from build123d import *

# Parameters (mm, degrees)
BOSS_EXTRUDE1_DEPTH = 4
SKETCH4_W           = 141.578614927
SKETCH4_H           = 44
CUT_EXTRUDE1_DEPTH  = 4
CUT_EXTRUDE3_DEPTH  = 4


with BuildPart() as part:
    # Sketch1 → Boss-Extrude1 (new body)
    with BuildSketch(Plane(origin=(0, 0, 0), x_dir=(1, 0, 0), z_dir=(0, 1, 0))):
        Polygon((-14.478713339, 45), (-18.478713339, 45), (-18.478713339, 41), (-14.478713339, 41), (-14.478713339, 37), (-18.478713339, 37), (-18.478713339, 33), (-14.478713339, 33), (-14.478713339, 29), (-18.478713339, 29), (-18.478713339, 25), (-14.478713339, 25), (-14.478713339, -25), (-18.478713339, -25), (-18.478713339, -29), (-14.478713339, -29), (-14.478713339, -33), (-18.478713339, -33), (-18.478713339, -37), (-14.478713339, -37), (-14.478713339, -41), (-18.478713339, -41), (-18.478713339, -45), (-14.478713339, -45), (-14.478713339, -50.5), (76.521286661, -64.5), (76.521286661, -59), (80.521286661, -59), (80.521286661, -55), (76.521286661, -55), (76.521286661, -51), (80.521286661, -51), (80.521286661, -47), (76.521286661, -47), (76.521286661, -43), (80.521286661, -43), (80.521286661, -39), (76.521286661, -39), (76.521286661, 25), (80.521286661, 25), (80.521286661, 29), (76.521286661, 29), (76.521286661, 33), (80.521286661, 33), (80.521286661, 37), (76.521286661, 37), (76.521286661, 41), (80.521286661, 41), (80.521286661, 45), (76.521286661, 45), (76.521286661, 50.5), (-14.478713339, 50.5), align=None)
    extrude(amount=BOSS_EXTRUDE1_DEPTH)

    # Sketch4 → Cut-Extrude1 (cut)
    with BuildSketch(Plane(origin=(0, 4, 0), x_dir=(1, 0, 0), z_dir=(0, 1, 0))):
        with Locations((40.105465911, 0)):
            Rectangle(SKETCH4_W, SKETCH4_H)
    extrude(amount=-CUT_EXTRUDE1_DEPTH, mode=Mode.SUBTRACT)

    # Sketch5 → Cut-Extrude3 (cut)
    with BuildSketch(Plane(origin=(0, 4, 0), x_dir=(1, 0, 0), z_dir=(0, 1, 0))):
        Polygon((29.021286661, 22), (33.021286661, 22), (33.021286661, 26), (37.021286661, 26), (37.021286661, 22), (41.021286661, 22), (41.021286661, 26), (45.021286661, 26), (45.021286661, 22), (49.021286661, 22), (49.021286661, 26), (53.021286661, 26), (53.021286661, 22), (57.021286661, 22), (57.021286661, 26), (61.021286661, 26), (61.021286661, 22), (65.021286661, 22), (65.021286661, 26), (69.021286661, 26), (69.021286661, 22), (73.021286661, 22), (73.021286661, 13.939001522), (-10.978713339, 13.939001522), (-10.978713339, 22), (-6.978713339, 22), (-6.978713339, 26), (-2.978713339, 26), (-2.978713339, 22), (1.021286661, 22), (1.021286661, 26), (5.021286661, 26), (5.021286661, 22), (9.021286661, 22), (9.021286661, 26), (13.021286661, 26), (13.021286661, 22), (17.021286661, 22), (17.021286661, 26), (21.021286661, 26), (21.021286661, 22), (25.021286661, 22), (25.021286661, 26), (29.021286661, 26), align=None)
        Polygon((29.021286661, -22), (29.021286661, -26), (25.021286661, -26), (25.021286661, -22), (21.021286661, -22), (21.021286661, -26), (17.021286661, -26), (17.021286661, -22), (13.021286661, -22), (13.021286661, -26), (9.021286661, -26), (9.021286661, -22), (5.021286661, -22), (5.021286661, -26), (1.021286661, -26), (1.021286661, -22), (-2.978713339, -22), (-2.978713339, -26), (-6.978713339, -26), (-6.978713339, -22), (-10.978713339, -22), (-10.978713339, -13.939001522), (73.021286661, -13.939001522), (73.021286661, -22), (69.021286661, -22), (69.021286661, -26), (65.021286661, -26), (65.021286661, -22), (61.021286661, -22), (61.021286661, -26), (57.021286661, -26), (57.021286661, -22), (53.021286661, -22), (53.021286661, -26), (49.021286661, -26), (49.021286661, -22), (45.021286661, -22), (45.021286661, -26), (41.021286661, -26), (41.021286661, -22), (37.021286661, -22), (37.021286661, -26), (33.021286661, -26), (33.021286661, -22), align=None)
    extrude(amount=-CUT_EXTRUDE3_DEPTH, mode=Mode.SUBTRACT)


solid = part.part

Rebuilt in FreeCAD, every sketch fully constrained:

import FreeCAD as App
import Part
import Sketcher


def add_polygon(sketch, points):
    """Adds a closed chain of lines whose ends are joined by coincident constraints."""
    first, n = sketch.GeometryCount, len(points)
    for a, b in zip(points, points[1:] + points[:1]):
        sketch.addGeometry(Part.LineSegment(App.Vector(*a, 0), App.Vector(*b, 0)), False)
    for i in range(n):
        sketch.addConstraint(Sketcher.Constraint("Coincident", first + i, 2, first + (i + 1) % n, 1))

doc = App.newDocument("Part")
body = doc.addObject("PartDesign::Body", "Body")
body.AllowCompound = True

# Sketch on XZ plane
sketch1 = body.newObject("Sketcher::SketchObject", "Sketch")
sketch1.AttachmentSupport = (doc.getObject("XZ_Plane"), [""])
sketch1.MapMode = "FlatFace"
add_polygon(sketch1, [(-14.478713, -45), (-18.478713, -45), (-18.478713, -41), (-14.478713, -41), (-14.478713, -37), (-18.478713, -37), (-18.478713, -33), (-14.478713, -33), (-14.478713, -29), (-18.478713, -29), (-18.478713, -25), (-14.478713, -25), (-14.478713, 25), (-18.478713, 25), (-18.478713, 29), (-14.478713, 29), (-14.478713, 33), (-18.478713, 33), (-18.478713, 37), (-14.478713, 37), (-14.478713, 41), (-18.478713, 41), (-18.478713, 45), (-14.478713, 45), (-14.478713, 50.5), (76.521287, 64.5), (76.521287, 59), (80.521287, 59), (80.521287, 55), (76.521287, 55), (76.521287, 51), (80.521287, 51), (80.521287, 47), (76.521287, 47), (76.521287, 43), (80.521287, 43), (80.521287, 39), (76.521287, 39), (76.521287, -25), (80.521287, -25), (80.521287, -29), (76.521287, -29), (76.521287, -33), (80.521287, -33), (80.521287, -37), (76.521287, -37), (76.521287, -41), (80.521287, -41), (80.521287, -45), (76.521287, -45), (76.521287, -50.5), (-14.478713, -50.5)])  # lines 0-51
sketch1.addConstraint(Sketcher.Constraint("Horizontal", 0))
sketch1.addConstraint(Sketcher.Constraint("Vertical", 1))
sketch1.addConstraint(Sketcher.Constraint("Horizontal", 2))
sketch1.addConstraint(Sketcher.Constraint("Vertical", 3))
sketch1.addConstraint(Sketcher.Constraint("Horizontal", 4))
sketch1.addConstraint(Sketcher.Constraint("Vertical", 5))
sketch1.addConstraint(Sketcher.Constraint("Horizontal", 6))
sketch1.addConstraint(Sketcher.Constraint("Vertical", 7))
sketch1.addConstraint(Sketcher.Constraint("Horizontal", 8))
sketch1.addConstraint(Sketcher.Constraint("Vertical", 9))
sketch1.addConstraint(Sketcher.Constraint("Horizontal", 10))
sketch1.addConstraint(Sketcher.Constraint("Vertical", 11))
sketch1.addConstraint(Sketcher.Constraint("Horizontal", 12))
sketch1.addConstraint(Sketcher.Constraint("Vertical", 13))
sketch1.addConstraint(Sketcher.Constraint("Horizontal", 14))
sketch1.addConstraint(Sketcher.Constraint("Vertical", 15))
sketch1.addConstraint(Sketcher.Constraint("Horizontal", 16))
sketch1.addConstraint(Sketcher.Constraint("Vertical", 17))
sketch1.addConstraint(Sketcher.Constraint("Horizontal", 18))
sketch1.addConstraint(Sketcher.Constraint("Vertical", 19))
sketch1.addConstraint(Sketcher.Constraint("Horizontal", 20))
sketch1.addConstraint(Sketcher.Constraint("Vertical", 21))
sketch1.addConstraint(Sketcher.Constraint("Horizontal", 22))
sketch1.addConstraint(Sketcher.Constraint("Vertical", 23))
sketch1.addConstraint(Sketcher.Constraint("Vertical", 25))
sketch1.addConstraint(Sketcher.Constraint("Horizontal", 26))
sketch1.addConstraint(Sketcher.Constraint("Vertical", 27))
sketch1.addConstraint(Sketcher.Constraint("Horizontal", 28))
sketch1.addConstraint(Sketcher.Constraint("Vertical", 29))
sketch1.addConstraint(Sketcher.Constraint("Horizontal", 30))
sketch1.addConstraint(Sketcher.Constraint("Vertical", 31))
sketch1.addConstraint(Sketcher.Constraint("Horizontal", 32))
sketch1.addConstraint(Sketcher.Constraint("Vertical", 33))
sketch1.addConstraint(Sketcher.Constraint("Horizontal", 34))
sketch1.addConstraint(Sketcher.Constraint("Vertical", 35))
sketch1.addConstraint(Sketcher.Constraint("Horizontal", 36))
sketch1.addConstraint(Sketcher.Constraint("Vertical", 37))
sketch1.addConstraint(Sketcher.Constraint("Horizontal", 38))
sketch1.addConstraint(Sketcher.Constraint("Vertical", 39))
sketch1.addConstraint(Sketcher.Constraint("Horizontal", 40))
sketch1.addConstraint(Sketcher.Constraint("Vertical", 41))
sketch1.addConstraint(Sketcher.Constraint("Horizontal", 42))
sketch1.addConstraint(Sketcher.Constraint("Vertical", 43))
sketch1.addConstraint(Sketcher.Constraint("Horizontal", 44))
sketch1.addConstraint(Sketcher.Constraint("Vertical", 45))
sketch1.addConstraint(Sketcher.Constraint("Horizontal", 46))
sketch1.addConstraint(Sketcher.Constraint("Vertical", 47))
sketch1.addConstraint(Sketcher.Constraint("Horizontal", 48))
sketch1.addConstraint(Sketcher.Constraint("Vertical", 49))
sketch1.addConstraint(Sketcher.Constraint("Horizontal", 50))
sketch1.addConstraint(Sketcher.Constraint("Vertical", 51))
sketch1.addConstraint(Sketcher.Constraint("Symmetric", 9, 2, 12, 2, -1))
sketch1.addConstraint(Sketcher.Constraint("Symmetric", 7, 2, 14, 2, -1))
sketch1.addConstraint(Sketcher.Constraint("Symmetric", 5, 2, 16, 2, -1))
sketch1.addConstraint(Sketcher.Constraint("Symmetric", 3, 2, 18, 2, -1))
sketch1.addConstraint(Sketcher.Constraint("Symmetric", 1, 2, 20, 2, -1))
sketch1.addConstraint(Sketcher.Constraint("Symmetric", 23, 2, 50, 2, -1))
sketch1.addConstraint(Sketcher.Constraint("Horizontal", 10, 2, 37, 2))
sketch1.addConstraint(Sketcher.Constraint("Horizontal", 8, 2, 39, 2))
sketch1.addConstraint(Sketcher.Constraint("Horizontal", 6, 2, 41, 2))
sketch1.addConstraint(Sketcher.Constraint("Horizontal", 4, 2, 43, 2))
sketch1.addConstraint(Sketcher.Constraint("Horizontal", 2, 2, 45, 2))
sketch1.addConstraint(Sketcher.Constraint("Horizontal", 0, 2, 47, 2))
sketch1.addConstraint(Sketcher.Constraint("Vertical", 1, 2, 4, 2))
sketch1.addConstraint(Sketcher.Constraint("Vertical", 3, 2, 6, 2))
sketch1.addConstraint(Sketcher.Constraint("Vertical", 5, 2, 8, 2))
sketch1.addConstraint(Sketcher.Constraint("Vertical", 7, 2, 10, 2))
sketch1.addConstraint(Sketcher.Constraint("Vertical", 19, 2, 22, 2))
sketch1.addConstraint(Sketcher.Constraint("Vertical", 25, 2, 28, 2))
sketch1.addConstraint(Sketcher.Constraint("Vertical", 27, 2, 30, 2))
sketch1.addConstraint(Sketcher.Constraint("Vertical", 29, 2, 32, 2))
sketch1.addConstraint(Sketcher.Constraint("Vertical", 31, 2, 34, 2))
sketch1.addConstraint(Sketcher.Constraint("Vertical", 33, 2, 36, 2))
sketch1.addConstraint(Sketcher.Constraint("Vertical", 35, 2, 38, 2))
sketch1.addConstraint(Sketcher.Constraint("Vertical", 37, 2, 40, 2))
sketch1.addConstraint(Sketcher.Constraint("Vertical", 39, 2, 42, 2))
sketch1.addConstraint(Sketcher.Constraint("Vertical", 41, 2, 44, 2))
sketch1.addConstraint(Sketcher.Constraint("Vertical", 43, 2, 46, 2))
sketch1.addConstraint(Sketcher.Constraint("Vertical", 45, 2, 48, 2))
sketch1.addConstraint(Sketcher.Constraint("Equal", 22, 26))
sketch1.addConstraint(Sketcher.Constraint("Equal", 48, 1))
sketch1.addConstraint(Sketcher.Constraint("Equal", 1, 3))
sketch1.addConstraint(Sketcher.Constraint("Equal", 3, 5))
sketch1.addConstraint(Sketcher.Constraint("Equal", 5, 7))
sketch1.addConstraint(Sketcher.Constraint("Equal", 7, 9))
sketch1.addConstraint(Sketcher.Constraint("Equal", 19, 21))
sketch1.addConstraint(Sketcher.Constraint("Equal", 23, 25))
sketch1.addConstraint(Sketcher.Constraint("Equal", 21, 27))
sketch1.addConstraint(Sketcher.Constraint("Equal", 27, 29))
sketch1.addConstraint(Sketcher.Constraint("Equal", 29, 31))
sketch1.addConstraint(Sketcher.Constraint("Equal", 31, 33))
sketch1.addConstraint(Sketcher.Constraint("Equal", 33, 35))
sketch1.addConstraint(Sketcher.Constraint("DistanceX", 0, 2, 0, 1, 4.0))
sketch1.addConstraint(Sketcher.Constraint("DistanceX", 50, 2, 50, 1, 91.0))
sketch1.addConstraint(Sketcher.Constraint("DistanceY", 11, 1, 11, 2, 50.0))
sketch1.addConstraint(Sketcher.Constraint("DistanceY", 37, 2, 37, 1, 64.0))
sketch1.addConstraint(Sketcher.Constraint("DistanceY", 23, 1, 23, 2, 5.5))
sketch1.addConstraint(Sketcher.Constraint("DistanceX", 0, 2, -1, 1, 18.478713))
pad1 = body.newObject("PartDesign::Pad", "Pad")
pad1.Profile = sketch1
pad1.Length = 4
pad1.Reversed = True

# Sketch on XZ plane
sketch2 = body.newObject("Sketcher::SketchObject", "Sketch001")
sketch2.AttachmentSupport = (doc.getObject("XZ_Plane"), [""])
sketch2.MapMode = "FlatFace"
sketch2.AttachmentOffset = App.Placement(App.Vector(0, 0, -4), App.Rotation())
add_polygon(sketch2, [(-30.683842, -22), (-30.683842, 22), (110.894773, 22), (110.894773, -22)])  # lines 0-3
sketch2.addConstraint(Sketcher.Constraint("Vertical", 0))
sketch2.addConstraint(Sketcher.Constraint("Horizontal", 1))
sketch2.addConstraint(Sketcher.Constraint("Vertical", 2))
sketch2.addConstraint(Sketcher.Constraint("Horizontal", 3))
sketch2.addConstraint(Sketcher.Constraint("DistanceY", 0, 1, 0, 2, 44.0))
sketch2.addConstraint(Sketcher.Constraint("DistanceY", -1, 1, 0, 2, 22.0))
sketch2.addConstraint(Sketcher.Constraint("DistanceX", 1, 1, 1, 2, 141.578615))
sketch2.addConstraint(Sketcher.Constraint("DistanceX", 0, 2, -1, 1, 30.683842))
pocket1 = body.newObject("PartDesign::Pocket", "Pocket")
pocket1.Profile = sketch2
pocket1.Length = 4
pocket1.Reversed = True

# Sketch on XZ plane
sketch3 = body.newObject("Sketcher::SketchObject", "Sketch002")
sketch3.AttachmentSupport = (doc.getObject("XZ_Plane"), [""])
sketch3.MapMode = "FlatFace"
sketch3.AttachmentOffset = App.Placement(App.Vector(0, 0, -4), App.Rotation())
add_polygon(sketch3, [(33.021287, -22), (29.021287, -22), (29.021287, -26), (25.021287, -26), (25.021287, -22), (21.021287, -22), (21.021287, -26), (17.021287, -26), (17.021287, -22), (13.021287, -22), (13.021287, -26), (9.021287, -26), (9.021287, -22), (5.021287, -22), (5.021287, -26), (1.021287, -26), (1.021287, -22), (-2.978713, -22), (-2.978713, -26), (-6.978713, -26), (-6.978713, -22), (-10.978713, -22), (-10.978713, -13.939002), (73.021287, -13.939002), (73.021287, -22), (69.021287, -22), (69.021287, -26), (65.021287, -26), (65.021287, -22), (61.021287, -22), (61.021287, -26), (57.021287, -26), (57.021287, -22), (53.021287, -22), (53.021287, -26), (49.021287, -26), (49.021287, -22), (45.021287, -22), (45.021287, -26), (41.021287, -26), (41.021287, -22), (37.021287, -22), (37.021287, -26), (33.021287, -26)])  # lines 0-43
add_polygon(sketch3, [(29.021287, 26), (29.021287, 22), (33.021287, 22), (33.021287, 26), (37.021287, 26), (37.021287, 22), (41.021287, 22), (41.021287, 26), (45.021287, 26), (45.021287, 22), (49.021287, 22), (49.021287, 26), (53.021287, 26), (53.021287, 22), (57.021287, 22), (57.021287, 26), (61.021287, 26), (61.021287, 22), (65.021287, 22), (65.021287, 26), (69.021287, 26), (69.021287, 22), (73.021287, 22), (73.021287, 13.939002), (-10.978713, 13.939002), (-10.978713, 22), (-6.978713, 22), (-6.978713, 26), (-2.978713, 26), (-2.978713, 22), (1.021287, 22), (1.021287, 26), (5.021287, 26), (5.021287, 22), (9.021287, 22), (9.021287, 26), (13.021287, 26), (13.021287, 22), (17.021287, 22), (17.021287, 26), (21.021287, 26), (21.021287, 22), (25.021287, 22), (25.021287, 26)])  # lines 44-87
sketch3.addConstraint(Sketcher.Constraint("Horizontal", 0))
sketch3.addConstraint(Sketcher.Constraint("Vertical", 1))
sketch3.addConstraint(Sketcher.Constraint("Horizontal", 2))
sketch3.addConstraint(Sketcher.Constraint("Vertical", 3))
sketch3.addConstraint(Sketcher.Constraint("Horizontal", 4))
sketch3.addConstraint(Sketcher.Constraint("Vertical", 5))
sketch3.addConstraint(Sketcher.Constraint("Horizontal", 6))
sketch3.addConstraint(Sketcher.Constraint("Vertical", 7))
sketch3.addConstraint(Sketcher.Constraint("Horizontal", 8))
sketch3.addConstraint(Sketcher.Constraint("Vertical", 9))
sketch3.addConstraint(Sketcher.Constraint("Horizontal", 10))
sketch3.addConstraint(Sketcher.Constraint("Vertical", 11))
sketch3.addConstraint(Sketcher.Constraint("Horizontal", 12))
sketch3.addConstraint(Sketcher.Constraint("Vertical", 13))
sketch3.addConstraint(Sketcher.Constraint("Horizontal", 14))
sketch3.addConstraint(Sketcher.Constraint("Vertical", 15))
sketch3.addConstraint(Sketcher.Constraint("Horizontal", 16))
sketch3.addConstraint(Sketcher.Constraint("Vertical", 17))
sketch3.addConstraint(Sketcher.Constraint("Horizontal", 18))
sketch3.addConstraint(Sketcher.Constraint("Vertical", 19))
sketch3.addConstraint(Sketcher.Constraint("Horizontal", 20))
sketch3.addConstraint(Sketcher.Constraint("Vertical", 21))
sketch3.addConstraint(Sketcher.Constraint("Horizontal", 22))
sketch3.addConstraint(Sketcher.Constraint("Vertical", 23))
sketch3.addConstraint(Sketcher.Constraint("Horizontal", 24))
sketch3.addConstraint(Sketcher.Constraint("Vertical", 25))
sketch3.addConstraint(Sketcher.Constraint("Horizontal", 26))
sketch3.addConstraint(Sketcher.Constraint("Vertical", 27))
sketch3.addConstraint(Sketcher.Constraint("Horizontal", 28))
sketch3.addConstraint(Sketcher.Constraint("Vertical", 29))
sketch3.addConstraint(Sketcher.Constraint("Horizontal", 30))
sketch3.addConstraint(Sketcher.Constraint("Vertical", 31))
sketch3.addConstraint(Sketcher.Constraint("Horizontal", 32))
sketch3.addConstraint(Sketcher.Constraint("Vertical", 33))
sketch3.addConstraint(Sketcher.Constraint("Horizontal", 34))
sketch3.addConstraint(Sketcher.Constraint("Vertical", 35))
sketch3.addConstraint(Sketcher.Constraint("Horizontal", 36))
sketch3.addConstraint(Sketcher.Constraint("Vertical", 37))
sketch3.addConstraint(Sketcher.Constraint("Horizontal", 38))
sketch3.addConstraint(Sketcher.Constraint("Vertical", 39))
sketch3.addConstraint(Sketcher.Constraint("Horizontal", 40))
sketch3.addConstraint(Sketcher.Constraint("Vertical", 41))
sketch3.addConstraint(Sketcher.Constraint("Horizontal", 42))
sketch3.addConstraint(Sketcher.Constraint("Vertical", 43))
sketch3.addConstraint(Sketcher.Constraint("Vertical", 44))
sketch3.addConstraint(Sketcher.Constraint("Horizontal", 45))
sketch3.addConstraint(Sketcher.Constraint("Vertical", 46))
sketch3.addConstraint(Sketcher.Constraint("Horizontal", 47))
sketch3.addConstraint(Sketcher.Constraint("Vertical", 48))
sketch3.addConstraint(Sketcher.Constraint("Horizontal", 49))
sketch3.addConstraint(Sketcher.Constraint("Vertical", 50))
sketch3.addConstraint(Sketcher.Constraint("Horizontal", 51))
sketch3.addConstraint(Sketcher.Constraint("Vertical", 52))
sketch3.addConstraint(Sketcher.Constraint("Horizontal", 53))
sketch3.addConstraint(Sketcher.Constraint("Vertical", 54))
sketch3.addConstraint(Sketcher.Constraint("Horizontal", 55))
sketch3.addConstraint(Sketcher.Constraint("Vertical", 56))
sketch3.addConstraint(Sketcher.Constraint("Horizontal", 57))
sketch3.addConstraint(Sketcher.Constraint("Vertical", 58))
sketch3.addConstraint(Sketcher.Constraint("Horizontal", 59))
sketch3.addConstraint(Sketcher.Constraint("Vertical", 60))
sketch3.addConstraint(Sketcher.Constraint("Horizontal", 61))
sketch3.addConstraint(Sketcher.Constraint("Vertical", 62))
sketch3.addConstraint(Sketcher.Constraint("Horizontal", 63))
sketch3.addConstraint(Sketcher.Constraint("Vertical", 64))
sketch3.addConstraint(Sketcher.Constraint("Horizontal", 65))
sketch3.addConstraint(Sketcher.Constraint("Vertical", 66))
sketch3.addConstraint(Sketcher.Constraint("Horizontal", 67))
sketch3.addConstraint(Sketcher.Constraint("Vertical", 68))
sketch3.addConstraint(Sketcher.Constraint("Horizontal", 69))
sketch3.addConstraint(Sketcher.Constraint("Vertical", 70))
sketch3.addConstraint(Sketcher.Constraint("Horizontal", 71))
sketch3.addConstraint(Sketcher.Constraint("Vertical", 72))
sketch3.addConstraint(Sketcher.Constraint("Horizontal", 73))
sketch3.addConstraint(Sketcher.Constraint("Vertical", 74))
sketch3.addConstraint(Sketcher.Constraint("Horizontal", 75))
sketch3.addConstraint(Sketcher.Constraint("Vertical", 76))
sketch3.addConstraint(Sketcher.Constraint("Horizontal", 77))
sketch3.addConstraint(Sketcher.Constraint("Vertical", 78))
sketch3.addConstraint(Sketcher.Constraint("Horizontal", 79))
sketch3.addConstraint(Sketcher.Constraint("Vertical", 80))
sketch3.addConstraint(Sketcher.Constraint("Horizontal", 81))
sketch3.addConstraint(Sketcher.Constraint("Vertical", 82))
sketch3.addConstraint(Sketcher.Constraint("Horizontal", 83))
sketch3.addConstraint(Sketcher.Constraint("Vertical", 84))
sketch3.addConstraint(Sketcher.Constraint("Horizontal", 85))
sketch3.addConstraint(Sketcher.Constraint("Vertical", 86))
sketch3.addConstraint(Sketcher.Constraint("Horizontal", 87))
sketch3.addConstraint(Sketcher.Constraint("Symmetric", 0, 2, 44, 2, -1))
sketch3.addConstraint(Sketcher.Constraint("Symmetric", 42, 2, 46, 2, -1))
sketch3.addConstraint(Sketcher.Constraint("Symmetric", 40, 2, 48, 2, -1))
sketch3.addConstraint(Sketcher.Constraint("Symmetric", 38, 2, 50, 2, -1))
sketch3.addConstraint(Sketcher.Constraint("Symmetric", 36, 2, 52, 2, -1))
sketch3.addConstraint(Sketcher.Constraint("Symmetric", 34, 2, 54, 2, -1))
sketch3.addConstraint(Sketcher.Constraint("Symmetric", 32, 2, 56, 2, -1))
sketch3.addConstraint(Sketcher.Constraint("Symmetric", 30, 2, 58, 2, -1))
sketch3.addConstraint(Sketcher.Constraint("Symmetric", 28, 2, 60, 2, -1))
sketch3.addConstraint(Sketcher.Constraint("Symmetric", 26, 2, 62, 2, -1))
sketch3.addConstraint(Sketcher.Constraint("Symmetric", 24, 2, 64, 2, -1))
sketch3.addConstraint(Sketcher.Constraint("Symmetric", 22, 2, 66, 2, -1))
sketch3.addConstraint(Sketcher.Constraint("Symmetric", 20, 2, 68, 2, -1))
sketch3.addConstraint(Sketcher.Constraint("Symmetric", 18, 2, 70, 2, -1))
sketch3.addConstraint(Sketcher.Constraint("Symmetric", 16, 2, 72, 2, -1))
sketch3.addConstraint(Sketcher.Constraint("Symmetric", 14, 2, 74, 2, -1))
sketch3.addConstraint(Sketcher.Constraint("Symmetric", 12, 2, 76, 2, -1))
sketch3.addConstraint(Sketcher.Constraint("Symmetric", 10, 2, 78, 2, -1))
sketch3.addConstraint(Sketcher.Constraint("Symmetric", 8, 2, 80, 2, -1))
sketch3.addConstraint(Sketcher.Constraint("Symmetric", 6, 2, 82, 2, -1))
sketch3.addConstraint(Sketcher.Constraint("Symmetric", 4, 2, 84, 2, -1))
sketch3.addConstraint(Sketcher.Constraint("Symmetric", 2, 2, 86, 2, -1))
sketch3.addConstraint(Sketcher.Constraint("Horizontal", 0, 2, 3, 2))
sketch3.addConstraint(Sketcher.Constraint("Horizontal", 2, 2, 5, 2))
sketch3.addConstraint(Sketcher.Constraint("Horizontal", 4, 2, 7, 2))
sketch3.addConstraint(Sketcher.Constraint("Horizontal", 6, 2, 9, 2))
sketch3.addConstraint(Sketcher.Constraint("Horizontal", 8, 2, 11, 2))
sketch3.addConstraint(Sketcher.Constraint("Horizontal", 10, 2, 13, 2))
sketch3.addConstraint(Sketcher.Constraint("Horizontal", 12, 2, 15, 2))
sketch3.addConstraint(Sketcher.Constraint("Horizontal", 14, 2, 17, 2))
sketch3.addConstraint(Sketcher.Constraint("Horizontal", 16, 2, 19, 2))
sketch3.addConstraint(Sketcher.Constraint("Horizontal", 20, 2, 23, 2))
sketch3.addConstraint(Sketcher.Constraint("Horizontal", 18, 2, 25, 2))
sketch3.addConstraint(Sketcher.Constraint("Horizontal", 24, 2, 27, 2))
sketch3.addConstraint(Sketcher.Constraint("Horizontal", 26, 2, 29, 2))
sketch3.addConstraint(Sketcher.Constraint("Horizontal", 28, 2, 31, 2))
sketch3.addConstraint(Sketcher.Constraint("Horizontal", 30, 2, 33, 2))
sketch3.addConstraint(Sketcher.Constraint("Horizontal", 32, 2, 35, 2))
sketch3.addConstraint(Sketcher.Constraint("Horizontal", 34, 2, 37, 2))
sketch3.addConstraint(Sketcher.Constraint("Horizontal", 36, 2, 39, 2))
sketch3.addConstraint(Sketcher.Constraint("Horizontal", 38, 2, 41, 2))
sketch3.addConstraint(Sketcher.Constraint("Equal", 0, 2))
sketch3.addConstraint(Sketcher.Constraint("Equal", 2, 4))
sketch3.addConstraint(Sketcher.Constraint("Equal", 4, 6))
sketch3.addConstraint(Sketcher.Constraint("Equal", 6, 8))
sketch3.addConstraint(Sketcher.Constraint("Equal", 8, 10))
sketch3.addConstraint(Sketcher.Constraint("Equal", 10, 12))
sketch3.addConstraint(Sketcher.Constraint("Equal", 12, 14))
sketch3.addConstraint(Sketcher.Constraint("Equal", 14, 16))
sketch3.addConstraint(Sketcher.Constraint("Equal", 16, 18))
sketch3.addConstraint(Sketcher.Constraint("Equal", 18, 20))
sketch3.addConstraint(Sketcher.Constraint("Equal", 20, 24))
sketch3.addConstraint(Sketcher.Constraint("Equal", 24, 26))
sketch3.addConstraint(Sketcher.Constraint("Equal", 26, 28))
sketch3.addConstraint(Sketcher.Constraint("Equal", 28, 30))
sketch3.addConstraint(Sketcher.Constraint("Equal", 30, 32))
sketch3.addConstraint(Sketcher.Constraint("Equal", 32, 34))
sketch3.addConstraint(Sketcher.Constraint("Equal", 34, 36))
sketch3.addConstraint(Sketcher.Constraint("Equal", 36, 38))
sketch3.addConstraint(Sketcher.Constraint("Equal", 38, 40))
sketch3.addConstraint(Sketcher.Constraint("Equal", 40, 42))
sketch3.addConstraint(Sketcher.Constraint("Equal", 87, 1))
sketch3.addConstraint(Sketcher.Constraint("DistanceX", 0, 2, 0, 1, 4.0))
sketch3.addConstraint(Sketcher.Constraint("DistanceY", 0, 2, -1, 1, 22.0))
sketch3.addConstraint(Sketcher.Constraint("DistanceY", 21, 1, 21, 2, 8.060998))
sketch3.addConstraint(Sketcher.Constraint("DistanceX", -1, 1, 0, 2, 29.021287))
pocket2 = body.newObject("PartDesign::Pocket", "Pocket001")
pocket2.Profile = sketch3
pocket2.Length = 4
pocket2.Reversed = True

doc.recompute()
